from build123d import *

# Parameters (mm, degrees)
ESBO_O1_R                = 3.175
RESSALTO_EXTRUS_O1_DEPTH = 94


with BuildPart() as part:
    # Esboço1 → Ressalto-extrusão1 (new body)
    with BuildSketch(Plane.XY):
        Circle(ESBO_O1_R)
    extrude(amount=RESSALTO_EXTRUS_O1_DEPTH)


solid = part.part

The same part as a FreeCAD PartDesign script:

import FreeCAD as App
import Part
import Sketcher

V = App.Vector

doc = App.newDocument("Part")
params = doc.addObject("Spreadsheet::Sheet", "Params")
for row, (alias, value) in enumerate([
    ("sketch1_diameter", "6.35 mm"),
    ("pad1_length", "94 mm"),
], start=1):
    params.set(f"A{row}", alias)
    params.set(f"B{row}", "=" + value)
    params.setAlias(f"B{row}", alias)

body = doc.addObject("PartDesign::Body", "Body")

# Sketch on XY plane
sketch1 = doc.addObject("Sketcher::SketchObject", "Sketch")
body.addObject(sketch1)
sketch1.AttachmentSupport = (doc.XY_Plane, [""])
sketch1.MapMode = "FlatFace"
sketch1.addGeometry(Part.Circle(V(0, 0, 0), V(0, 0, 1), 3.2), False)
sketch1.addConstraint([
    Sketcher.Constraint("Coincident", 0, 3, -1, 1),
    Sketcher.Constraint("Diameter", 0, 6.35),
])
sketch1.setExpression("Constraints[1]", "Params.sketch1_diameter")
pad1 = doc.addObject("PartDesign::Pad", "Pad")
body.addObject(pad1)
pad1.Profile = sketch1
pad1.setExpression("Length", "Params.pad1_length")

doc.recompute()
